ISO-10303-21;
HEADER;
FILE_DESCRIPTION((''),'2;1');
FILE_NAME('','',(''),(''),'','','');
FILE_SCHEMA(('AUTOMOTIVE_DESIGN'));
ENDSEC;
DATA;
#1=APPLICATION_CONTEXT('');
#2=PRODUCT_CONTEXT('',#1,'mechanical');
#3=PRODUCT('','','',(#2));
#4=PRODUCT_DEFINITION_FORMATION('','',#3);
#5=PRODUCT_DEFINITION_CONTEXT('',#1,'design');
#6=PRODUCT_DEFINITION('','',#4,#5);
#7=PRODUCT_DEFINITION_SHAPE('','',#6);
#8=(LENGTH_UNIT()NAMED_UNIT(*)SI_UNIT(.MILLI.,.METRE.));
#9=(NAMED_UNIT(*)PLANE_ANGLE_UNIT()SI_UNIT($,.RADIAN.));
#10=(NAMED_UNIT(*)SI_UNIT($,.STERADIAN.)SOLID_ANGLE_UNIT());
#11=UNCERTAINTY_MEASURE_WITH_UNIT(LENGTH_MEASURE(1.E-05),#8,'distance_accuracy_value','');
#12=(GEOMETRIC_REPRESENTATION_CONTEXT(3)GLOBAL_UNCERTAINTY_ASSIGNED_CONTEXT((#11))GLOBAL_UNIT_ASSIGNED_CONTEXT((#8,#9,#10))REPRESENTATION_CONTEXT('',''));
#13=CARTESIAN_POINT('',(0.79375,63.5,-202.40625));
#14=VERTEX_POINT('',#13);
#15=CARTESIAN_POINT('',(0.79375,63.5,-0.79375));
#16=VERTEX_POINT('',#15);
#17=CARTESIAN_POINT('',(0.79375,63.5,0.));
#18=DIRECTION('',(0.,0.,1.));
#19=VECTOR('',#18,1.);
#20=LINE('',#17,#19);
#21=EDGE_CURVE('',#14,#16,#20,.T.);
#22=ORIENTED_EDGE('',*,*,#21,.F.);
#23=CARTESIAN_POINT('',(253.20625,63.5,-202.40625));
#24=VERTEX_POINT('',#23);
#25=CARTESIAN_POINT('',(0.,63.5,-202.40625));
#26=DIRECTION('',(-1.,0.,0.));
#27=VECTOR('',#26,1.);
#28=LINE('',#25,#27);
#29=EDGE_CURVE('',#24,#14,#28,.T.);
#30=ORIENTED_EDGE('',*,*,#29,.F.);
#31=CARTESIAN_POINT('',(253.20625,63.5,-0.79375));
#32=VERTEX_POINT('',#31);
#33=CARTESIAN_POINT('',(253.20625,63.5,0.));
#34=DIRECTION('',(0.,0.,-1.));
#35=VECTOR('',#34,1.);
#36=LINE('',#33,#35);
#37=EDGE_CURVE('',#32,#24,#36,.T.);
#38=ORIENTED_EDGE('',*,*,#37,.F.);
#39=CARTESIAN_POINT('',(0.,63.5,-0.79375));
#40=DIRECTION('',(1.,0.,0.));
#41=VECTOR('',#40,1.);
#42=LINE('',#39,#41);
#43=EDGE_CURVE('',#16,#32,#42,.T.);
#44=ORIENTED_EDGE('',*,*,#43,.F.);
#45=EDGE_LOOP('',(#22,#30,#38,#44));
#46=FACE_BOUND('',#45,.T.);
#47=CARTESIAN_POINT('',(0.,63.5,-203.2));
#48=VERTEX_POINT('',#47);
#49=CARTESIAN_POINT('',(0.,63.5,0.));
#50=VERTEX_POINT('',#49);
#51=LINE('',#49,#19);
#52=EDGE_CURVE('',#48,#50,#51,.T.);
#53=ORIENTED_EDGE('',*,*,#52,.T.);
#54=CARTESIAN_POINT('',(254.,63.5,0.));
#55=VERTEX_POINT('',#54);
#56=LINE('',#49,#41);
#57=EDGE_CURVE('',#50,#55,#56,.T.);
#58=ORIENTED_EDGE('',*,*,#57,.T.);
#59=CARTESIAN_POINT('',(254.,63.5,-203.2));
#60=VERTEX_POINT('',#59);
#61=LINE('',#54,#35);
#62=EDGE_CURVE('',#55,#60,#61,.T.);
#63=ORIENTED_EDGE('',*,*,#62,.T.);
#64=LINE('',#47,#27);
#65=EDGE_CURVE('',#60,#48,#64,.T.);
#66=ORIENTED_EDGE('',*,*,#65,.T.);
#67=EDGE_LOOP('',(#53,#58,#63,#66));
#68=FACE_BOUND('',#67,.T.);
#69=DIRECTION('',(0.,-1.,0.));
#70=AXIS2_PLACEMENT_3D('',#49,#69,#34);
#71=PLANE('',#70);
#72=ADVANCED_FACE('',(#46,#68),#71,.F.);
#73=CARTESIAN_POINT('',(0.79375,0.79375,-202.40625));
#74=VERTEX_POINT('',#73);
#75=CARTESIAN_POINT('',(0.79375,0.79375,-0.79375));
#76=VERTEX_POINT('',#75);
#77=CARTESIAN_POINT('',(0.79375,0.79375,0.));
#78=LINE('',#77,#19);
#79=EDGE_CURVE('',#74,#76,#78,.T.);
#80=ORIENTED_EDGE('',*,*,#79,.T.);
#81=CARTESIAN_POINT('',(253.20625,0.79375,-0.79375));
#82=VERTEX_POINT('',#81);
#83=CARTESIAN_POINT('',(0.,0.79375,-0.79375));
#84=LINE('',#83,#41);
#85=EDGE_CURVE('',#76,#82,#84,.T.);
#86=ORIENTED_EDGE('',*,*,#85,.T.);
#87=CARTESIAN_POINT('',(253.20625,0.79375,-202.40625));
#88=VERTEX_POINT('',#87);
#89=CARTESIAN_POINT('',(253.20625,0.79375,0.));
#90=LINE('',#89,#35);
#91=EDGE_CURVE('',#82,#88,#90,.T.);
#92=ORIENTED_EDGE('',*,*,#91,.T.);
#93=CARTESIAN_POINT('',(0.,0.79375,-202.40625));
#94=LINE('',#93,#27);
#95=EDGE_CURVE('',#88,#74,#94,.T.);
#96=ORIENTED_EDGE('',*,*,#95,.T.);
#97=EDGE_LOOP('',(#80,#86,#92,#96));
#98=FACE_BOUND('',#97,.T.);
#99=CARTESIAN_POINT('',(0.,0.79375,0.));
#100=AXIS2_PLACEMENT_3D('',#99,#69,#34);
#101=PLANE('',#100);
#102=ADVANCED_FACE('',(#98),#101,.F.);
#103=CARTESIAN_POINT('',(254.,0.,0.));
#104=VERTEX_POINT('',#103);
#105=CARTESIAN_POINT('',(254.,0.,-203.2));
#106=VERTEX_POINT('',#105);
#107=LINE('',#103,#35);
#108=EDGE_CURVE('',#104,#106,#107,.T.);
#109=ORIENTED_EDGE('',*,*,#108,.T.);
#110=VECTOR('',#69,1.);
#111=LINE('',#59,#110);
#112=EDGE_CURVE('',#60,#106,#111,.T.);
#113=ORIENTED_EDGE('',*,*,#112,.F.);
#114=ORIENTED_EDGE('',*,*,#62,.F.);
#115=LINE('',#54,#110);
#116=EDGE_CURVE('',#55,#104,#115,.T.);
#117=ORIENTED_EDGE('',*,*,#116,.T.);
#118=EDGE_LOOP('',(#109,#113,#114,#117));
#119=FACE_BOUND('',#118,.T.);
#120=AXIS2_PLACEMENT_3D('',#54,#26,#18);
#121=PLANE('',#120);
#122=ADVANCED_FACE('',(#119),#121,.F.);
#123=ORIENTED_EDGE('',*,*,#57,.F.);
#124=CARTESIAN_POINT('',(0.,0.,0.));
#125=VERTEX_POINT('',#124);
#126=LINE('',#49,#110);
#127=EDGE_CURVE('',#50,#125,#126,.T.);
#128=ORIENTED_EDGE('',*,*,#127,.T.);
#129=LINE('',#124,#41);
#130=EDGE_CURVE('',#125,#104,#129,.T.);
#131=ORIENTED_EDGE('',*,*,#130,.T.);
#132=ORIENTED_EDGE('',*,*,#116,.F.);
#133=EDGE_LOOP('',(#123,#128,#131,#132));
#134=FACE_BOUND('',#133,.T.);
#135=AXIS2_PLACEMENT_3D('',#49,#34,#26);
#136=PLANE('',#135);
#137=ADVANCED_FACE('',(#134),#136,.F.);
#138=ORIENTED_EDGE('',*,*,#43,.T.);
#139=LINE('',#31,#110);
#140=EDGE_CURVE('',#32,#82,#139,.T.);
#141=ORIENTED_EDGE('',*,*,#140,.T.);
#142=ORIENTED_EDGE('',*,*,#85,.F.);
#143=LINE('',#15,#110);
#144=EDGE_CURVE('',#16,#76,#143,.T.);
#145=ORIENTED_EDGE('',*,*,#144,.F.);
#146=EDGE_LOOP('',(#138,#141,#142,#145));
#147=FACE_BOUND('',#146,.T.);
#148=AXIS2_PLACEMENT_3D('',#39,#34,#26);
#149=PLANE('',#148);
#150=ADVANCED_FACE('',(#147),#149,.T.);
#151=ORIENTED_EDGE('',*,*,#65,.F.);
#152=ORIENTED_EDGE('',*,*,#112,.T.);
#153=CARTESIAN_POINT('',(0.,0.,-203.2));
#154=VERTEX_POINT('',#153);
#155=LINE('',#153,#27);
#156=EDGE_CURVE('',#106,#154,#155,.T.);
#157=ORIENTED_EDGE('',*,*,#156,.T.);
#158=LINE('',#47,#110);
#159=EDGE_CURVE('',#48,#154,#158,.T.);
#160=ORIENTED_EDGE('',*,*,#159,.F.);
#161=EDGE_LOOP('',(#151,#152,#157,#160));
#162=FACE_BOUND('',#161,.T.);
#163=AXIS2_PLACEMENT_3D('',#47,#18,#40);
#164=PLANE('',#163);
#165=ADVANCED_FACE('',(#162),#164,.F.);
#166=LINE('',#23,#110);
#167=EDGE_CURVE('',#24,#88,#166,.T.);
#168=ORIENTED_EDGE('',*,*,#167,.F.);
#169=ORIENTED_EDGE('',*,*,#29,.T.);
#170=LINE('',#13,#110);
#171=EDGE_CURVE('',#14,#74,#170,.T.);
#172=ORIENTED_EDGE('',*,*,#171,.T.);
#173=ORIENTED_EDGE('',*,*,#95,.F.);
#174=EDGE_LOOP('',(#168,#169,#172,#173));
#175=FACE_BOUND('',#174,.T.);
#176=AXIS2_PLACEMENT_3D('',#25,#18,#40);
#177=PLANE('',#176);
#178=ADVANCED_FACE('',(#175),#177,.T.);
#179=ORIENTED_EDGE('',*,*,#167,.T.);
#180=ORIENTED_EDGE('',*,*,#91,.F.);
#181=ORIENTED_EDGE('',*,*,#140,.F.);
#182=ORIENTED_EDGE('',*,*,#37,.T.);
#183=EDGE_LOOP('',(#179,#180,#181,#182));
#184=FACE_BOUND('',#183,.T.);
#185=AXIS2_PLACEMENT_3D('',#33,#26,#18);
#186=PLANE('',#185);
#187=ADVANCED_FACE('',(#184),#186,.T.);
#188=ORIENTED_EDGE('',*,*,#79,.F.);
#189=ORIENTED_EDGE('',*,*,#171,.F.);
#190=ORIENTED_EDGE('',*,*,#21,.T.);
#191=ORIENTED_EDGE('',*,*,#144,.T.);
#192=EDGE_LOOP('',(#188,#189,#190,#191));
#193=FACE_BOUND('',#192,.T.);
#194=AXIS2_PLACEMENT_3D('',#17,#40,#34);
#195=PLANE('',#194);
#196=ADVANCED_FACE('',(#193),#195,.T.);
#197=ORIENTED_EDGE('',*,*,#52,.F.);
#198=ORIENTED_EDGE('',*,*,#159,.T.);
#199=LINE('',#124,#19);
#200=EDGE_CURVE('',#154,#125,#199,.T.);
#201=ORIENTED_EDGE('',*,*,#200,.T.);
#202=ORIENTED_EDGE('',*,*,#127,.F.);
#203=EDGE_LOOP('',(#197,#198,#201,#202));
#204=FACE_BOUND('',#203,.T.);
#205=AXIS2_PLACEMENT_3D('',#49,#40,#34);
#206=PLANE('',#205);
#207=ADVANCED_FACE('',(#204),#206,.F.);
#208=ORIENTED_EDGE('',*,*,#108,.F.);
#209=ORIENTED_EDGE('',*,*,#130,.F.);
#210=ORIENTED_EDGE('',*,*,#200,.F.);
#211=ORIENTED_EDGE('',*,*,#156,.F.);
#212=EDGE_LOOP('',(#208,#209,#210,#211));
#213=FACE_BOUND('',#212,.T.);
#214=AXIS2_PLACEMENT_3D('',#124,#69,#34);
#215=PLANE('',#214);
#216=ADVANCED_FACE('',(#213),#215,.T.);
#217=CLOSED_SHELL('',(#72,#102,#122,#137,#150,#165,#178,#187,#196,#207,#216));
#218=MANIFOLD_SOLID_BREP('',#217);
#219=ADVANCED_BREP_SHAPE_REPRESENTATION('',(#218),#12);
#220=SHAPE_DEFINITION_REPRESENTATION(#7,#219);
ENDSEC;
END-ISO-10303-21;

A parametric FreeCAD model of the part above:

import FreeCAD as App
import Part
import Sketcher
Q = App.Units.Quantity


def faces_at(feature, points):
    """Names of the faces that lie closest to the given points."""
    faces = feature.Shape.Faces
    near = lambda p: min(range(len(faces)), key=lambda i: faces[i].distToShape(Part.Vertex(*p))[0])
    return sorted({f"Face{near(p) + 1}" for p in points})

doc = App.newDocument("Part")
params = doc.addObject("Spreadsheet::Sheet", "Params")
for row, (alias, value) in enumerate([
    ("sketch1_width", "10 in"),
    ("sketch1_height", "8 in"),
    ("pad1_length", "2.5 in"),
    ("thickness_wall", "0.03125 in"),
], start=1):
    params.set(f"A{row}", alias)
    params.set(f"B{row}", "=" + value)
    params.setAlias(f"B{row}", alias)

body = doc.addObject("PartDesign::Body", "Body")

# Sketch on XZ plane
sketch1 = doc.addObject("Sketcher::SketchObject", "Sketch")
body.addObject(sketch1)
sketch1.AttachmentSupport = (doc.XZ_Plane, [""])
sketch1.MapMode = "FlatFace"
sketch1.addGeometry([
    Part.LineSegment(App.Vector(0, -203.2, 0), App.Vector(0, 0, 0)),
    Part.LineSegment(App.Vector(0, 0, 0), App.Vector(254, 0, 0)),
    Part.LineSegment(App.Vector(254, 0, 0), App.Vector(254, -203.2, 0)),
    Part.LineSegment(App.Vector(254, -203.2, 0), App.Vector(0, -203.2, 0)),
], False)
sketch1.addConstraint([
    Sketcher.Constraint("Coincident", 0, 2, 1, 1),
    Sketcher.Constraint("Coincident", 1, 2, 2, 1),
    Sketcher.Constraint("Coincident", 2, 2, 3, 1),
    Sketcher.Constraint("Coincident", 3, 2, 0, 1),
    Sketcher.Constraint("Vertical", 0),
    Sketcher.Constraint("Horizontal", 1),
    Sketcher.Constraint("Vertical", 2),
    Sketcher.Constraint("Horizontal", 3),
    Sketcher.Constraint("Coincident", 0, 2, -1, 1),
    Sketcher.Constraint("DistanceX", 1, 1, 1, 2, Q("10 in")),
    Sketcher.Constraint("DistanceY", 0, 1, 0, 2, Q("8 in")),
])
sketch1.setExpression("Constraints[9]", "Params.sketch1_width")
sketch1.setExpression("Constraints[10]", "Params.sketch1_height")
pad1 = doc.addObject("PartDesign::Pad", "Pad")
body.addObject(pad1)
pad1.Profile = sketch1
pad1.setExpression("Length", "Params.pad1_length")
pad1.Reversed = True
doc.recompute()

thickness = doc.addObject("PartDesign::Thickness", "Thickness")
body.addObject(thickness)
thickness.Base = (pad1, faces_at(pad1, [(127, 63.5, -101.6)]))
thickness.setExpression("Value", "Params.thickness_wall")
thickness.Reversed = True
thickness.Join = "Intersection"

doc.recompute()
